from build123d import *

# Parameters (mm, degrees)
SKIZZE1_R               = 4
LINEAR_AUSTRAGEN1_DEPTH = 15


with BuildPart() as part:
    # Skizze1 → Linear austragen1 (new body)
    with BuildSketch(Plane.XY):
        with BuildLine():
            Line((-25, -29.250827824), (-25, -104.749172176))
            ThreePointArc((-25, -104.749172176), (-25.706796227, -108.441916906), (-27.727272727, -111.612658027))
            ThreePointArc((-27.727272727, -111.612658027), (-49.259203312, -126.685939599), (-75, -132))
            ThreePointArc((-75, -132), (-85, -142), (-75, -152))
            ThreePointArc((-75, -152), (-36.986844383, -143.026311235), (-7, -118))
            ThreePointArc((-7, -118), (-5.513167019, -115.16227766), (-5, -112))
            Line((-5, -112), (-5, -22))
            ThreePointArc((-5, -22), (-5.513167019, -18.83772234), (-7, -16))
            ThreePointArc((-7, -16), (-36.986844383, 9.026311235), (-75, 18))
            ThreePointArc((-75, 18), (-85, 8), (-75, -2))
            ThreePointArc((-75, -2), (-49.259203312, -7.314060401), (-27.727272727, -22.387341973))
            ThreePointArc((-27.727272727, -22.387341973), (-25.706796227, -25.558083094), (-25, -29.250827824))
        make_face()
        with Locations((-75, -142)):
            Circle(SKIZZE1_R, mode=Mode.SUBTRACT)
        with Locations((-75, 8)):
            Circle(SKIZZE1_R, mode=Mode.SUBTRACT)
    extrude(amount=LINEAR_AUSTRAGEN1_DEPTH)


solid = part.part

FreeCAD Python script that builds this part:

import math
import FreeCAD as App
import Part
import Sketcher
from FreeCAD import Vector

doc = App.newDocument("Part")
body = doc.addObject("PartDesign::Body", "Body")

# Sketch on XY plane
sketch1 = body.newObject("Sketcher::SketchObject", "Sketch")
sketch1.AttachmentSupport = (doc.getObject("XY_Plane"), [""])
sketch1.MapMode = "FlatFace"
sketch1.addGeometry([
    Part.LineSegment(Vector(-25, -29.3, 0), Vector(-25, -104.7, 0)),  # 0
    Part.ArcOfCircle(Part.Circle(Vector(-35, -104.7, 0), Vector(0, 0, 1), 10), math.radians(-43), math.radians(0)),  # 1
    Part.ArcOfCircle(Part.Circle(Vector(-75, -67, 0), Vector(0, 0, 1), 65), math.radians(-90), math.radians(-43)),  # 2
    Part.ArcOfCircle(Part.Circle(Vector(-75, -142, 0), Vector(0, 0, 1), 10), math.radians(90), math.radians(270)),  # 3
    Part.ArcOfCircle(Part.Circle(Vector(-75, -67, 0), Vector(0, 0, 1), 85), math.radians(-90), math.radians(-37)),  # 4
    Part.ArcOfCircle(Part.Circle(Vector(-15, -112, 0), Vector(0, 0, 1), 10), math.radians(-37), math.radians(0)),  # 5
    Part.LineSegment(Vector(-5, -112, 0), Vector(-5, -22, 0)),  # 6
    Part.ArcOfCircle(Part.Circle(Vector(-15, -22, 0), Vector(0, 0, 1), 10), math.radians(0), math.radians(37)),  # 7
    Part.ArcOfCircle(Part.Circle(Vector(-75, -67, 0), Vector(0, 0, 1), 85), math.radians(37), math.radians(90)),  # 8
    Part.ArcOfCircle(Part.Circle(Vector(-75, 8, 0), Vector(0, 0, 1), 10), math.radians(90), math.radians(270)),  # 9
    Part.ArcOfCircle(Part.Circle(Vector(-75, -67, 0), Vector(0, 0, 1), 65), math.radians(43), math.radians(90)),  # 10
    Part.ArcOfCircle(Part.Circle(Vector(-35, -29.3, 0), Vector(0, 0, 1), 10), math.radians(0), math.radians(43)),  # 11
    Part.Circle(Vector(-75, -142, 0), Vector(0, 0, 1), 4),  # 12
    Part.Circle(Vector(-75, 8, 0), Vector(0, 0, 1), 4),  # 13
], False)
sketch1.addConstraint([
    Sketcher.Constraint("Tangent", 0, 2, 1, 2),
    Sketcher.Constraint("Tangent", 1, 1, 2, 2),
    Sketcher.Constraint("Tangent", 2, 1, 3, 1),
    Sketcher.Constraint("Tangent", 3, 2, 4, 1),
    Sketcher.Constraint("Tangent", 4, 2, 5, 1),
    Sketcher.Constraint("Tangent", 5, 2, 6, 1),
    Sketcher.Constraint("Tangent", 6, 2, 7, 1),
    Sketcher.Constraint("Tangent", 7, 2, 8, 1),
    Sketcher.Constraint("Tangent", 8, 2, 9, 1),
    Sketcher.Constraint("Tangent", 9, 2, 10, 2),
    Sketcher.Constraint("Tangent", 10, 1, 11, 2),
    Sketcher.Constraint("Tangent", 11, 1, 0, 1),
    Sketcher.Constraint("Vertical", 0),
    Sketcher.Constraint("Vertical", 6),
    Sketcher.Constraint("Coincident", 4, 3, 2, 3),
    Sketcher.Constraint("Coincident", 8, 3, 2, 3),
    Sketcher.Constraint("Coincident", 10, 3, 2, 3),
    Sketcher.Constraint("Coincident", 12, 3, 3, 3),
    Sketcher.Constraint("Coincident", 13, 3, 9, 3),
    Sketcher.Constraint("Equal", 1, 3),
    Sketcher.Constraint("Equal", 3, 5),
    Sketcher.Constraint("Equal", 5, 7),
    Sketcher.Constraint("Equal", 4, 8),
    Sketcher.Constraint("Equal", 7, 9),
    Sketcher.Constraint("Equal", 9, 11),
    Sketcher.Constraint("Equal", 12, 13),
    Sketcher.Constraint("Vertical", 2, 3, 3, 3),
    Sketcher.Constraint("Vertical", 8, 3, 9, 3),
    Sketcher.Constraint("Diameter", 12, 8.0),
    Sketcher.Constraint("Radius", 1, 10.0),
    Sketcher.Constraint("Radius", 2, 65.0),
    Sketcher.Constraint("DistanceY", 6, 1, 6, 2, 90.0),
    Sketcher.Constraint("DistanceX", 1, 3, -1, 1, 35.0),
    Sketcher.Constraint("DistanceX", 2, 3, -1, 1, 75.0),
    Sketcher.Constraint("DistanceY", 2, 3, -1, 1, 67.0),
])
pad1 = body.newObject("PartDesign::Pad", "Pad")
pad1.Profile = sketch1
pad1.Length = 15

doc.recompute()
